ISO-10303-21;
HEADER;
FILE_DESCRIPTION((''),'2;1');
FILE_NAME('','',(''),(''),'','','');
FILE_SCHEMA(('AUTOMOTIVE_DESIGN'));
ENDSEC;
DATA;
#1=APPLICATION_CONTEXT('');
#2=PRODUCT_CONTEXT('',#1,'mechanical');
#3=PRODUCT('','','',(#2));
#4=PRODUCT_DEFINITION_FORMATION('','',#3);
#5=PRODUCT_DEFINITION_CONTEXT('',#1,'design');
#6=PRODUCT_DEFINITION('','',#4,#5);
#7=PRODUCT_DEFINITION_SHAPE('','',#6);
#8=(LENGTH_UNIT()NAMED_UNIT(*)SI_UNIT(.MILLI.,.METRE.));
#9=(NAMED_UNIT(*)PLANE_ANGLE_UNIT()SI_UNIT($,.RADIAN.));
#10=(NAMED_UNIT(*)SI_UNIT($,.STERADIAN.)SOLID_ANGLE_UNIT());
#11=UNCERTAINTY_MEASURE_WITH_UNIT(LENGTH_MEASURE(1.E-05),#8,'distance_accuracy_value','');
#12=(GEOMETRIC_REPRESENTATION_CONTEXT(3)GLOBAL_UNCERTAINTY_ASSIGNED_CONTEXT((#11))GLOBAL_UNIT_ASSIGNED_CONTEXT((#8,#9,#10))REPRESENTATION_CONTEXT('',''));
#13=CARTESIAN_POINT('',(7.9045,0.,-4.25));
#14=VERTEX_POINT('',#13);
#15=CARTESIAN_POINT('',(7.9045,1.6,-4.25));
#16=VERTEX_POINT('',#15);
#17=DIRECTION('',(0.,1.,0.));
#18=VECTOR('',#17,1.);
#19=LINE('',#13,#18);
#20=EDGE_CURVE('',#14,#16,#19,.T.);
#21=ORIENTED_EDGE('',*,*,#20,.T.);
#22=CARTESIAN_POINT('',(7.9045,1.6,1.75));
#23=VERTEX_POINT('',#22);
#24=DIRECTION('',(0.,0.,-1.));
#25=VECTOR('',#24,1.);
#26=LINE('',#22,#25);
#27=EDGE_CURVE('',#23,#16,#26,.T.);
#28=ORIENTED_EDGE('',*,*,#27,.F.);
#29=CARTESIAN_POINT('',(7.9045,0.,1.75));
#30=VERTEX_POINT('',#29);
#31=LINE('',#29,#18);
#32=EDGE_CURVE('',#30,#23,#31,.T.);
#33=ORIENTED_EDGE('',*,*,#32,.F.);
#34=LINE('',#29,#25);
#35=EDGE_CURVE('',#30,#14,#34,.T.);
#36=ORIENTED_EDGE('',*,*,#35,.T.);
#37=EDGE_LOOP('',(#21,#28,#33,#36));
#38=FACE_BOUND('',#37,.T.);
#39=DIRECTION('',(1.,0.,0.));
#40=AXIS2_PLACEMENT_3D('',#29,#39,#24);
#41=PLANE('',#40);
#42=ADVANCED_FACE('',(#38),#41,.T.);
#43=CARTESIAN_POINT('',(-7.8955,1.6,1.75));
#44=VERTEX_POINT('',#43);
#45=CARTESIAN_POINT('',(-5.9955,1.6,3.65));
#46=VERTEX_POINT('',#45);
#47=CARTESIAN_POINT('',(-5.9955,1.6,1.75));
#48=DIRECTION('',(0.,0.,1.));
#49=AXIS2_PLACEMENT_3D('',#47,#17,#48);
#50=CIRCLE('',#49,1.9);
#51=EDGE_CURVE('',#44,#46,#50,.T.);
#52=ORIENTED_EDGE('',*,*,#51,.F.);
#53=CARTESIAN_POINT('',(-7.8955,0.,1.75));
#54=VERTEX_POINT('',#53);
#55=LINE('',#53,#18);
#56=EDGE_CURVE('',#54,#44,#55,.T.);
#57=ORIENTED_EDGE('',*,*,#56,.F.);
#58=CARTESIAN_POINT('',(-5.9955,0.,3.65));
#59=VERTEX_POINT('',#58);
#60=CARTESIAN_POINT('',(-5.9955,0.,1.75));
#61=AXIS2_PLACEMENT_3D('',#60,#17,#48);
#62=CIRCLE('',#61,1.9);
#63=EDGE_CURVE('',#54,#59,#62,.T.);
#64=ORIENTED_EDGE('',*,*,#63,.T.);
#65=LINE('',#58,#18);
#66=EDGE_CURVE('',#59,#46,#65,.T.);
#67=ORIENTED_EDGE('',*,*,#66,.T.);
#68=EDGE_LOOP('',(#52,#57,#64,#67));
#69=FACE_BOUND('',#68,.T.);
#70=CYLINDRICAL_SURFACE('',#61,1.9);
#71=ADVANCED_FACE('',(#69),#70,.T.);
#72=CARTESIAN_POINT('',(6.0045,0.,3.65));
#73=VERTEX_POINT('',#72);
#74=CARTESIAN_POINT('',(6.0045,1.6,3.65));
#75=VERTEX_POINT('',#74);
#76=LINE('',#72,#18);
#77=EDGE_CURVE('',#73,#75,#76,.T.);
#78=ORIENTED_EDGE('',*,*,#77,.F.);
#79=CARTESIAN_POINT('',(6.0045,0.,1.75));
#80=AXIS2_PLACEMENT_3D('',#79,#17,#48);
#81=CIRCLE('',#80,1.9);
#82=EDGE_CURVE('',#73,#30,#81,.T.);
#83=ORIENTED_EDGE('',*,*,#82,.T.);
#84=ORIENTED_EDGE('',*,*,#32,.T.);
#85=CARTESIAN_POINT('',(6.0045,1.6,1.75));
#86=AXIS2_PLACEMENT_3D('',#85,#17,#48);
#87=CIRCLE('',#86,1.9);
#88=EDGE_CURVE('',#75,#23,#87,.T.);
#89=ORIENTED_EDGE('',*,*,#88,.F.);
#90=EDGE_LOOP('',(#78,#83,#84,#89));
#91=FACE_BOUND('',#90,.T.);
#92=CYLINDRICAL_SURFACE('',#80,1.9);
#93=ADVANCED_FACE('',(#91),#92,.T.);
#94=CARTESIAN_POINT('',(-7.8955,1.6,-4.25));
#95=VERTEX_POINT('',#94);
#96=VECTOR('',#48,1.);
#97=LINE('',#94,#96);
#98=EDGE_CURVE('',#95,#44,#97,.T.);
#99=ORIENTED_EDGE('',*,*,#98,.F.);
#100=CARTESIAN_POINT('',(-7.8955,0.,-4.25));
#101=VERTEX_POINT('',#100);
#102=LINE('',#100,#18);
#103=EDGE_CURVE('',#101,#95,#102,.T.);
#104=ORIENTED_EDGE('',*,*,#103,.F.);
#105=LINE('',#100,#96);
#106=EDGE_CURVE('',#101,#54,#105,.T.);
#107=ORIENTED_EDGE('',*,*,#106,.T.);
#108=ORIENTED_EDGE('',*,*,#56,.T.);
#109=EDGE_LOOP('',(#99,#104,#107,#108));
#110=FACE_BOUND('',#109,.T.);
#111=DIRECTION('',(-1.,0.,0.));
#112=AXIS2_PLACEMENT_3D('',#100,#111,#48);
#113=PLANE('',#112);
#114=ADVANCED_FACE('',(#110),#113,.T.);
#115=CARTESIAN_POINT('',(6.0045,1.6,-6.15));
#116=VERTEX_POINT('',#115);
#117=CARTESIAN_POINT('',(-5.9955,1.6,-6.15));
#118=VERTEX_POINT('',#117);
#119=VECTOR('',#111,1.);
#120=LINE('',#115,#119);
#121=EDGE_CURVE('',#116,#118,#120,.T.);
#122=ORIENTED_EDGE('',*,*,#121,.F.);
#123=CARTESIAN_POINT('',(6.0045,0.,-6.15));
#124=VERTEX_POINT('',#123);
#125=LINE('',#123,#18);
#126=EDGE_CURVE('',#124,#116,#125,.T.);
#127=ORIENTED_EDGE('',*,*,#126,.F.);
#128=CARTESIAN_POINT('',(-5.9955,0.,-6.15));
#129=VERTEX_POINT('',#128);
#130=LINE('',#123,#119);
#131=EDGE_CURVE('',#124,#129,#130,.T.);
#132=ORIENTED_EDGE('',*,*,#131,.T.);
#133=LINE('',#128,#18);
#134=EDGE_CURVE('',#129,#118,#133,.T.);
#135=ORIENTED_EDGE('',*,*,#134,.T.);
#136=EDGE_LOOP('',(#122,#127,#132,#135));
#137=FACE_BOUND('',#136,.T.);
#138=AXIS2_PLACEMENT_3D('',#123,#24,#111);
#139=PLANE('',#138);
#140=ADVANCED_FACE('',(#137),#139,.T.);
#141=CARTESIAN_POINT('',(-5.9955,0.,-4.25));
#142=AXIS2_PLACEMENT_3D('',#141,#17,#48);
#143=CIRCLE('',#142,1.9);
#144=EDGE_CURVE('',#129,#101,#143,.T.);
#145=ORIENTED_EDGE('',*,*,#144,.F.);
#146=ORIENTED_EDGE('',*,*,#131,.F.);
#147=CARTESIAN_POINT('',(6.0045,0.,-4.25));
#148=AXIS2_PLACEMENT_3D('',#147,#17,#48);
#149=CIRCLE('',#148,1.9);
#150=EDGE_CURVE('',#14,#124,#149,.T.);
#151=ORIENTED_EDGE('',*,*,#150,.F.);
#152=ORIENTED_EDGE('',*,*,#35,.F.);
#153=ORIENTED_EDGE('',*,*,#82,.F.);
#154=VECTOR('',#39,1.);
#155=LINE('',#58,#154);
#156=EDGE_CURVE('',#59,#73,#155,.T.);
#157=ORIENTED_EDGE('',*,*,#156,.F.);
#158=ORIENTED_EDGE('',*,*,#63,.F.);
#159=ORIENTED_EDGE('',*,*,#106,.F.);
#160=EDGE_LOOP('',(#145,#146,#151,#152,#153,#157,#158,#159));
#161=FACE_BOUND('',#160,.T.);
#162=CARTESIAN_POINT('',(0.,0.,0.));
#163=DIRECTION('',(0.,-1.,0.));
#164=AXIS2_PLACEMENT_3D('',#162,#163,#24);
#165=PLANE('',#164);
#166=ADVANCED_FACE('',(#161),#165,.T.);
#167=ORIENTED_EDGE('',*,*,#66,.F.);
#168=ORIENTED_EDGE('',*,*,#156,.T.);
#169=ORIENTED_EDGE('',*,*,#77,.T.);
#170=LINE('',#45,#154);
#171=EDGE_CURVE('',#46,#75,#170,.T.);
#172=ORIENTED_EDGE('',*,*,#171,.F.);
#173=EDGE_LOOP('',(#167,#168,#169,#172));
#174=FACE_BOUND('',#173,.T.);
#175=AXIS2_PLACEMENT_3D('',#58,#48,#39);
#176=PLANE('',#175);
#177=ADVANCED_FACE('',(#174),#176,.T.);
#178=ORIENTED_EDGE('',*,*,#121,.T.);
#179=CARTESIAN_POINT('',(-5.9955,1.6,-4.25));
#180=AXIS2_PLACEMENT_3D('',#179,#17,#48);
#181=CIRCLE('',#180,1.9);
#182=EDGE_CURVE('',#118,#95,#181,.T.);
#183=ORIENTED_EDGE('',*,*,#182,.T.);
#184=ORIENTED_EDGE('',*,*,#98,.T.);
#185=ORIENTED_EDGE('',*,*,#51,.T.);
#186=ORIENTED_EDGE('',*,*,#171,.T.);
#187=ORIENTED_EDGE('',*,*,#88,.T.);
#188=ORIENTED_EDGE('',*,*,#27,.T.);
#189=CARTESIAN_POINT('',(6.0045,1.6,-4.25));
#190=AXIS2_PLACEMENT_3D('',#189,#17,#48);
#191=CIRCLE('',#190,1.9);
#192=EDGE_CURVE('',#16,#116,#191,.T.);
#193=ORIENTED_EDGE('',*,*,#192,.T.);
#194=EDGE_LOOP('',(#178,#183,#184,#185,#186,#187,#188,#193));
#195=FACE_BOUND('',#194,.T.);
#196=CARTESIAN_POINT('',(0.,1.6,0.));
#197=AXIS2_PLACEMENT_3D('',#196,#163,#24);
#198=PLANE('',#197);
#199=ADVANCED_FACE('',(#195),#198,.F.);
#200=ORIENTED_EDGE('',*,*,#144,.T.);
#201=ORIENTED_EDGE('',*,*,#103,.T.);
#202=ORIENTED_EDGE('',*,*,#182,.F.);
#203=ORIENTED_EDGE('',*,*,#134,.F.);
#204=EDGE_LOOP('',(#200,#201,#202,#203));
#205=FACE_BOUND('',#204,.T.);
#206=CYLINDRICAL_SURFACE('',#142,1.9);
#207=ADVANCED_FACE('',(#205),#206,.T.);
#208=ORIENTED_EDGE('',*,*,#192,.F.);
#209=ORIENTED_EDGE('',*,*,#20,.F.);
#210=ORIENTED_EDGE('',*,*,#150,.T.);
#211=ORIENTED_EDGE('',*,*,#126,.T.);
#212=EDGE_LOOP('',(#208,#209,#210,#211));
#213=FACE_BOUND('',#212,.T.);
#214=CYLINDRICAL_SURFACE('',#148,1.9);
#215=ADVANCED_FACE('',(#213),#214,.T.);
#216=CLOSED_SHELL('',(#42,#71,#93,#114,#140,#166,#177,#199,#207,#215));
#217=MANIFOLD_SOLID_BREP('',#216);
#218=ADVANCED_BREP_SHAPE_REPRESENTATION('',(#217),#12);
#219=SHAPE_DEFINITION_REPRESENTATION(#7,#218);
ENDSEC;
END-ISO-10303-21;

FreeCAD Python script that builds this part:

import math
import FreeCAD as App
import Part
import Sketcher


def add_polygon(sketch, points):
    """Adds a closed chain of lines whose ends are joined by coincident constraints."""
    first, n = sketch.GeometryCount, len(points)
    for a, b in zip(points, points[1:] + points[:1]):
        sketch.addGeometry(Part.LineSegment(App.Vector(*a, 0), App.Vector(*b, 0)), False)
    for i in range(n):
        sketch.addConstraint(Sketcher.Constraint("Coincident", first + i, 2, first + (i + 1) % n, 1))

doc = App.newDocument("Part")
body = doc.addObject("PartDesign::Body", "Body")

# Sketch on XZ plane
sketch1 = body.newObject("Sketcher::SketchObject", "Sketch")
sketch1.AttachmentSupport = (doc.getObject("XZ_Plane"), [""])
sketch1.MapMode = "FlatFace"
add_polygon(sketch1, [(-8, -8), (-8, 8), (8, 8), (8, -8)])  # lines 0-3
sketch1.addConstraint([
    Sketcher.Constraint("Vertical", 0),
    Sketcher.Constraint("Horizontal", 1),
    Sketcher.Constraint("Vertical", 2),
    Sketcher.Constraint("Horizontal", 3),
    Sketcher.Constraint("Symmetric", 0, 2, 2, 2, -1, 1),
    Sketcher.Constraint("Equal", 3, 0),
    Sketcher.Constraint("DistanceX", 1, 1, 1, 2, 16.0),
])
pad1 = body.newObject("PartDesign::Pad", "Pad")
pad1.Profile = sketch1
pad1.Length = 1.6
pad1.Reversed = True

# Sketch on XZ plane
sketch2 = body.newObject("Sketcher::SketchObject", "Sketch001")
sketch2.AttachmentSupport = (doc.getObject("XZ_Plane"), [""])
sketch2.MapMode = "FlatFace"
sketch2.AttachmentOffset = App.Placement(App.Vector(0, 0, -1.6), App.Rotation())
add_polygon(sketch2, [(-11.3, -11.3), (-11.3, 11.3), (11.3, 11.3), (11.3, -11.3)])  # lines 0-3
sketch2.addGeometry(Part.LineSegment(App.Vector(-6, -6.2, 0), App.Vector(6, -6.2, 0)), False)  # 4
sketch2.addGeometry(Part.ArcOfCircle(Part.Circle(App.Vector(6, -4.2, 0), App.Vector(0, 0, 1), 1.9), math.radians(-90), math.radians(0)), False)  # 5
sketch2.addGeometry(Part.LineSegment(App.Vector(7.9, -4.2, 0), App.Vector(7.9, 1.8, 0)), False)  # 6
sketch2.addGeometry(Part.ArcOfCircle(Part.Circle(App.Vector(6, 1.7, 0), App.Vector(0, 0, 1), 1.9), math.radians(0), math.radians(90)), False)  # 7
sketch2.addGeometry(Part.LineSegment(App.Vector(6, 3.6, 0), App.Vector(-6, 3.6, 0)), False)  # 8
sketch2.addGeometry(Part.ArcOfCircle(Part.Circle(App.Vector(-6, 1.7, 0), App.Vector(0, 0, 1), 1.9), math.radians(90), math.radians(180)), False)  # 9
sketch2.addGeometry(Part.LineSegment(App.Vector(-7.9, 1.8, 0), App.Vector(-7.9, -4.2, 0)), False)  # 10
sketch2.addGeometry(Part.ArcOfCircle(Part.Circle(App.Vector(-6, -4.2, 0), App.Vector(0, 0, 1), 1.9), math.radians(-180), math.radians(-90)), False)  # 11
sketch2.addConstraint([
    Sketcher.Constraint("Tangent", 4, 2, 5, 1),
    Sketcher.Constraint("Tangent", 5, 2, 6, 1),
    Sketcher.Constraint("Tangent", 6, 2, 7, 1),
    Sketcher.Constraint("Tangent", 7, 2, 8, 1),
    Sketcher.Constraint("Tangent", 8, 2, 9, 1),
    Sketcher.Constraint("Tangent", 9, 2, 10, 1),
    Sketcher.Constraint("Tangent", 10, 2, 11, 1),
    Sketcher.Constraint("Tangent", 11, 2, 4, 1),
    Sketcher.Constraint("Vertical", 0),
    Sketcher.Constraint("Horizontal", 1),
    Sketcher.Constraint("Vertical", 2),
    Sketcher.Constraint("Horizontal", 3),
    Sketcher.Constraint("Horizontal", 4),
    Sketcher.Constraint("Vertical", 6),
    Sketcher.Constraint("Horizontal", 8),
    Sketcher.Constraint("Vertical", 10),
    Sketcher.Constraint("Equal", 5, 7),
    Sketcher.Constraint("Equal", 7, 9),
    Sketcher.Constraint("Equal", 9, 11),
    Sketcher.Constraint("Symmetric", 0, 2, 2, 2, -1, 1),
    Sketcher.Constraint("Equal", 3, 0),
    Sketcher.Constraint("Radius", 5, 1.9),
    Sketcher.Constraint("DistanceX", 4, 1, 4, 2, 12.0),
    Sketcher.Constraint("DistanceY", 6, 1, 6, 2, 6.0),
    Sketcher.Constraint("DistanceX", 1, 1, 1, 2, 22.536),
    Sketcher.Constraint("DistanceY", 5, 3, -1, 1, 4.25),
    Sketcher.Constraint("DistanceX", -1, 1, 5, 3, 6.0045),
])
pocket1 = body.newObject("PartDesign::Pocket", "Pocket")
pocket1.Profile = sketch2
pocket1.Length = 1.6
pocket1.Reversed = True

doc.recompute()
